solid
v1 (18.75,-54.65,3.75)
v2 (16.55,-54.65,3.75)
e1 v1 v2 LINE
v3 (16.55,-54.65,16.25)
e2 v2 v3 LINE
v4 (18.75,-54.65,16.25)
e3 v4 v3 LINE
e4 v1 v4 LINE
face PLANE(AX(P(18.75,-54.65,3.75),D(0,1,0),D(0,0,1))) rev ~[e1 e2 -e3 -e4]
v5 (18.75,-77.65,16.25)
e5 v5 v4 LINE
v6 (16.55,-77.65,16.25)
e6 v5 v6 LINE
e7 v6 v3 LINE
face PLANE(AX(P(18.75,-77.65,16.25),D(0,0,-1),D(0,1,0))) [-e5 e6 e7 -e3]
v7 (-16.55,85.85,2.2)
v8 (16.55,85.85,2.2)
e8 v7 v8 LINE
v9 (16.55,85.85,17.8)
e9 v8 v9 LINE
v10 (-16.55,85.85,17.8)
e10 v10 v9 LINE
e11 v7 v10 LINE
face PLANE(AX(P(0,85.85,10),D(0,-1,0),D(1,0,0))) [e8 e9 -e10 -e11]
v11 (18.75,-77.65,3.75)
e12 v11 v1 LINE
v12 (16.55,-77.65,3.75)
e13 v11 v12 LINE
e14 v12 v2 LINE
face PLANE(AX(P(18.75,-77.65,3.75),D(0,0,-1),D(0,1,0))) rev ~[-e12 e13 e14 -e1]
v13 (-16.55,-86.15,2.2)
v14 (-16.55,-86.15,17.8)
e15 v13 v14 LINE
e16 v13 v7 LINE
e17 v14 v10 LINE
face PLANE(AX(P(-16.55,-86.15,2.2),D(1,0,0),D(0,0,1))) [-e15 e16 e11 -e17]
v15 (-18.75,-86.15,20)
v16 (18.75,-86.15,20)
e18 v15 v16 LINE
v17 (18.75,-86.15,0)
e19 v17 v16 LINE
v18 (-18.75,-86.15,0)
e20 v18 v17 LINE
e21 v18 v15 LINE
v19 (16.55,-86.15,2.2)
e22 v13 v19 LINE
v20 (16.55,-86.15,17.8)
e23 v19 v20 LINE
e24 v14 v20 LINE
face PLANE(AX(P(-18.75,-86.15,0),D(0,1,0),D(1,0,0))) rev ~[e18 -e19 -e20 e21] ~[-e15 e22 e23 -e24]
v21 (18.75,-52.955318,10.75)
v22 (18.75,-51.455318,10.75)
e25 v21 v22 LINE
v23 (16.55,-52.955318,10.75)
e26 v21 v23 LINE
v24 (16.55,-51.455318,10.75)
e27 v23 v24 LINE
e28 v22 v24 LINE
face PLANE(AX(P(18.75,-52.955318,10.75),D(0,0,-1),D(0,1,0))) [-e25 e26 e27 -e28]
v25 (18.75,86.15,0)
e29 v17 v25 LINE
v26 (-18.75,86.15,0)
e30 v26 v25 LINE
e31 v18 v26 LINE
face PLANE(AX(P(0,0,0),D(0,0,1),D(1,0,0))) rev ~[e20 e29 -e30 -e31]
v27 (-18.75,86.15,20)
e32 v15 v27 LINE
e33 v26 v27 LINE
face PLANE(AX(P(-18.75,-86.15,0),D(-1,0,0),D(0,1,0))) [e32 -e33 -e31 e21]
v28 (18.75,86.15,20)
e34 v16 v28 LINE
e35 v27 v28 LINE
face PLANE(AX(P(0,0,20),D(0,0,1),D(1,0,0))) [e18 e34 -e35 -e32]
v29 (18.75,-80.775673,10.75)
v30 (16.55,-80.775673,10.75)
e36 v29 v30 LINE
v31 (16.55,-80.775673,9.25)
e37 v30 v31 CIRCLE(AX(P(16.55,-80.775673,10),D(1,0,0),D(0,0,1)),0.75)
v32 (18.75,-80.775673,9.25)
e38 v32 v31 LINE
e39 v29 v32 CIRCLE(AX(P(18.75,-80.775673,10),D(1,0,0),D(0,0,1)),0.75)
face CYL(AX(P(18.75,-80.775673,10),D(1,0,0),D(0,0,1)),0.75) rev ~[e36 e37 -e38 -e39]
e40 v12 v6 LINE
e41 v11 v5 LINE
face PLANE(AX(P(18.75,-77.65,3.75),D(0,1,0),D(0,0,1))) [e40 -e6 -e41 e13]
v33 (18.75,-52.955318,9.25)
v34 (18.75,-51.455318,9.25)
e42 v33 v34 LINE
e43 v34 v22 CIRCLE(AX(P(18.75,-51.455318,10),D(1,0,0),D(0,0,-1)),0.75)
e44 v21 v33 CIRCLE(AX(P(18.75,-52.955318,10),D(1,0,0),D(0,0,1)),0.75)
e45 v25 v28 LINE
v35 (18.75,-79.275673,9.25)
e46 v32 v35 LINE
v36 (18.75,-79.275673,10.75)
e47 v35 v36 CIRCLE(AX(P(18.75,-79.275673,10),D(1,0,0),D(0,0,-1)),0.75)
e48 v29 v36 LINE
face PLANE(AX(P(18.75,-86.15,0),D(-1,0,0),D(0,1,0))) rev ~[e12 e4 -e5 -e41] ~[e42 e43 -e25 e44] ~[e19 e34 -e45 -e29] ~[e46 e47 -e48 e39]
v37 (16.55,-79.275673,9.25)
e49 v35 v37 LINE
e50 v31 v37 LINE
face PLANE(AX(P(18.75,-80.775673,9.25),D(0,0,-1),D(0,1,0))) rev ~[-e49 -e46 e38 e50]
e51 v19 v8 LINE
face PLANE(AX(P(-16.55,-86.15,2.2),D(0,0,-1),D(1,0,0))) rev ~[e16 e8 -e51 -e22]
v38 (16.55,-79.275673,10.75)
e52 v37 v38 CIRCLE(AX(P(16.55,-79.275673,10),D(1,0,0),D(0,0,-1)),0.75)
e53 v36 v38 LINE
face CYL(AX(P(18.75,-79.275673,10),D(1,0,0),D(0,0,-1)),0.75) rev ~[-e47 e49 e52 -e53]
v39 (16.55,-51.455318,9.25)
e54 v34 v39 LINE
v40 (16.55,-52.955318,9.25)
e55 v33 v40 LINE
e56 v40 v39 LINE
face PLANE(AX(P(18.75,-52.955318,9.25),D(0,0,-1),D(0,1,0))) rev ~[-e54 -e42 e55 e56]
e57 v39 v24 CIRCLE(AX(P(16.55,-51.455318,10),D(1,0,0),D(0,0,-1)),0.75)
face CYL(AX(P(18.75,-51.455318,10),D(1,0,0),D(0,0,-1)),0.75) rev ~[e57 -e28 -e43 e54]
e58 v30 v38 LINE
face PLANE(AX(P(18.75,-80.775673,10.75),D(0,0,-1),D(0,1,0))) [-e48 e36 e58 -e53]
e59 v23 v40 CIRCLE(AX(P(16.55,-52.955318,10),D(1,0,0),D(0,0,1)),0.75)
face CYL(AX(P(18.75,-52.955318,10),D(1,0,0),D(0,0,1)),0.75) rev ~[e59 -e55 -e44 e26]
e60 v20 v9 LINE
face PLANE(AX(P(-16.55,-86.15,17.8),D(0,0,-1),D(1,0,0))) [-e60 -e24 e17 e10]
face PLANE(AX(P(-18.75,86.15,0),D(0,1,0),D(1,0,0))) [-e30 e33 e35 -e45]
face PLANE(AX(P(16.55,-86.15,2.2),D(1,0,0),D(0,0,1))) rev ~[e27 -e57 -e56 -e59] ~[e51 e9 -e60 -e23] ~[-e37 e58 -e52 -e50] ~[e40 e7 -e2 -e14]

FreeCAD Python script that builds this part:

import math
import FreeCAD as App
import Part
import Sketcher
from FreeCAD import Vector


def add_polygon(sketch, points):
    """Adds a closed chain of lines whose ends are joined by coincident constraints."""
    first, n = sketch.GeometryCount, len(points)
    for a, b in zip(points, points[1:] + points[:1]):
        sketch.addGeometry(Part.LineSegment(App.Vector(*a, 0), App.Vector(*b, 0)), False)
    for i in range(n):
        sketch.addConstraint(Sketcher.Constraint("Coincident", first + i, 2, first + (i + 1) % n, 1))

doc = App.newDocument("Part")
body = doc.addObject("PartDesign::Body", "Body")

# Sketch on XY plane
sketch1 = body.newObject("Sketcher::SketchObject", "Sketch")
sketch1.AttachmentSupport = (doc.getObject("XY_Plane"), [""])
sketch1.MapMode = "FlatFace"
add_polygon(sketch1, [(-19, 86), (-19, -86), (19, -86), (19, 86)])  # lines 0-3
sketch1.addConstraint(Sketcher.Constraint("Vertical", 0))
sketch1.addConstraint(Sketcher.Constraint("Horizontal", 1))
sketch1.addConstraint(Sketcher.Constraint("Vertical", 2))
sketch1.addConstraint(Sketcher.Constraint("Horizontal", 3))
sketch1.addConstraint(Sketcher.Constraint("Symmetric", 0, 2, 2, 2, -1, 1))
sketch1.addConstraint(Sketcher.Constraint("DistanceX", 1, 1, 1, 2, 37.5))
sketch1.addConstraint(Sketcher.Constraint("DistanceY", 0, 2, 0, 1, 172.3))
pad1 = body.newObject("PartDesign::Pad", "Pad")
pad1.Profile = sketch1
pad1.Length = 20

# Sketch on XZ plane
sketch2 = body.newObject("Sketcher::SketchObject", "Sketch001")
sketch2.AttachmentSupport = (doc.getObject("XZ_Plane"), [""])
sketch2.MapMode = "FlatFace"
sketch2.AttachmentOffset = App.Placement(Vector(0, 0, 86.15), App.Rotation())
add_polygon(sketch2, [(-17, 18), (-17, 2), (17, 2), (17, 18)])  # lines 0-3
sketch2.addConstraint(Sketcher.Constraint("Vertical", 0))
sketch2.addConstraint(Sketcher.Constraint("Horizontal", 1))
sketch2.addConstraint(Sketcher.Constraint("Vertical", 2))
sketch2.addConstraint(Sketcher.Constraint("Horizontal", 3))
sketch2.addConstraint(Sketcher.Constraint("DistanceX", 1, 1, 1, 2, 33.1))
sketch2.addConstraint(Sketcher.Constraint("DistanceY", 0, 2, 0, 1, 15.6))
sketch2.addConstraint(Sketcher.Constraint("DistanceY", -1, 1, 0, 2, 2.2))
sketch2.addConstraint(Sketcher.Constraint("DistanceX", 0, 2, -1, 1, 16.55))
pocket1 = body.newObject("PartDesign::Pocket", "Pocket")
pocket1.Profile = sketch2
pocket1.Length = 172

# Sketch on YZ plane
sketch3 = body.newObject("Sketcher::SketchObject", "Sketch002")
sketch3.AttachmentSupport = (doc.getObject("YZ_Plane"), [""])
sketch3.MapMode = "FlatFace"
sketch3.AttachmentOffset = App.Placement(Vector(0, 0, 18.75), App.Rotation())
add_polygon(sketch3, [(-78, 16), (-78, 4), (-55, 4), (-55, 16)])  # lines 0-3
sketch3.addConstraint(Sketcher.Constraint("Vertical", 0))
sketch3.addConstraint(Sketcher.Constraint("Horizontal", 1))
sketch3.addConstraint(Sketcher.Constraint("Vertical", 2))
sketch3.addConstraint(Sketcher.Constraint("Horizontal", 3))
sketch3.addConstraint(Sketcher.Constraint("DistanceX", 1, 1, 1, 2, 23.0))
sketch3.addConstraint(Sketcher.Constraint("DistanceY", 0, 2, 0, 1, 12.5))
sketch3.addConstraint(Sketcher.Constraint("DistanceX", 0, 2, -1, 1, 77.65))
sketch3.addConstraint(Sketcher.Constraint("DistanceY", -1, 1, 0, 2, 3.75))
pocket2 = body.newObject("PartDesign::Pocket", "Pocket001")
pocket2.Profile = sketch3
pocket2.Length = 10

# Sketch on YZ plane
sketch4 = body.newObject("Sketcher::SketchObject", "Sketch003")
sketch4.AttachmentSupport = (doc.getObject("YZ_Plane"), [""])
sketch4.MapMode = "FlatFace"
sketch4.AttachmentOffset = App.Placement(Vector(0, 0, 18.75), App.Rotation())
sketch4.addGeometry(Part.ArcOfCircle(Part.Circle(Vector(-80.8, 10, 0), Vector(0, 0, 1), 0.8), math.radians(90), math.radians(270)), False)
sketch4.addGeometry(Part.LineSegment(Vector(-80.8, 9.2, 0), Vector(-79.3, 9.2, 0)), False)
sketch4.addGeometry(Part.ArcOfCircle(Part.Circle(Vector(-79.3, 10, 0), Vector(0, 0, 1), 0.8), math.radians(-90), math.radians(90)), False)
sketch4.addGeometry(Part.LineSegment(Vector(-79.3, 10.8, 0), Vector(-80.8, 10.8, 0)), False)
sketch4.addGeometry(Part.ArcOfCircle(Part.Circle(Vector(-53, 10, 0), Vector(0, 0, 1), 0.8), math.radians(90), math.radians(270)), False)
sketch4.addGeometry(Part.LineSegment(Vector(-53, 9.2, 0), Vector(-51.5, 9.2, 0)), False)
sketch4.addGeometry(Part.ArcOfCircle(Part.Circle(Vector(-51.5, 10, 0), Vector(0, 0, 1), 0.8), math.radians(-90), math.radians(90)), False)
sketch4.addGeometry(Part.LineSegment(Vector(-51.5, 10.8, 0), Vector(-53, 10.8, 0)), False)
sketch4.addConstraint(Sketcher.Constraint("Tangent", 0, 2, 1, 1))
sketch4.addConstraint(Sketcher.Constraint("Tangent", 1, 2, 2, 1))
sketch4.addConstraint(Sketcher.Constraint("Tangent", 2, 2, 3, 1))
sketch4.addConstraint(Sketcher.Constraint("Tangent", 3, 2, 0, 1))
sketch4.addConstraint(Sketcher.Constraint("Tangent", 4, 2, 5, 1))
sketch4.addConstraint(Sketcher.Constraint("Tangent", 5, 2, 6, 1))
sketch4.addConstraint(Sketcher.Constraint("Tangent", 6, 2, 7, 1))
sketch4.addConstraint(Sketcher.Constraint("Tangent", 7, 2, 4, 1))
sketch4.addConstraint(Sketcher.Constraint("Horizontal", 1))
sketch4.addConstraint(Sketcher.Constraint("Horizontal", 3))
sketch4.addConstraint(Sketcher.Constraint("Horizontal", 5))
sketch4.addConstraint(Sketcher.Constraint("Horizontal", 7))
sketch4.addConstraint(Sketcher.Constraint("Equal", 2, 4))
sketch4.addConstraint(Sketcher.Constraint("Horizontal", 2, 3, 4, 3))
sketch4.addConstraint(Sketcher.Constraint("Equal", 3, 5))
sketch4.addConstraint(Sketcher.Constraint("Radius", 0, 0.75))
sketch4.addConstraint(Sketcher.Constraint("DistanceX", 1, 1, 1, 2, 1.5))
sketch4.addConstraint(Sketcher.Constraint("DistanceY", -1, 1, 0, 3, 10.0))
sketch4.addConstraint(Sketcher.Constraint("DistanceX", 0, 3, -1, 1, 80.775673))
sketch4.addConstraint(Sketcher.Constraint("DistanceX", 4, 3, -1, 1, 52.955318))
pocket3 = body.newObject("PartDesign::Pocket", "Pocket002")
pocket3.Profile = sketch4
pocket3.Length = 5

doc.recompute()
